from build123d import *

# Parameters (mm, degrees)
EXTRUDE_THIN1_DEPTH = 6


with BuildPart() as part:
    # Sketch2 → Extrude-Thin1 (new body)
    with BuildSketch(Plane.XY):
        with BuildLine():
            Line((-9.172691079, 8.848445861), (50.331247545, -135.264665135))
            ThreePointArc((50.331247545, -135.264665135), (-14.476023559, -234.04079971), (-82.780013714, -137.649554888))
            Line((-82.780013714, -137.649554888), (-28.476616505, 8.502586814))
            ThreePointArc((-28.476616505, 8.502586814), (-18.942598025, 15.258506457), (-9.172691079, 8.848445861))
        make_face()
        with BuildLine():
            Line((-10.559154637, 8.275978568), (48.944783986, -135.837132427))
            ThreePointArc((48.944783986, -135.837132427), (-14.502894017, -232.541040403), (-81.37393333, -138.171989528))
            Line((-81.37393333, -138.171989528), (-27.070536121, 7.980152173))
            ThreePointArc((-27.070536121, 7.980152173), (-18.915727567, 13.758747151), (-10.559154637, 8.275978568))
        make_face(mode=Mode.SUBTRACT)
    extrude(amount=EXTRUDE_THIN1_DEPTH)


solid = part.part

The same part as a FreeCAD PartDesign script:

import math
import FreeCAD as App
import Part
import Sketcher
from FreeCAD import Vector

doc = App.newDocument("Part")
body = doc.addObject("PartDesign::Body", "Body")

# Sketch on XY plane
sketch1 = body.newObject("Sketcher::SketchObject", "Sketch")
sketch1.AttachmentSupport = (doc.getObject("XY_Plane"), [""])
sketch1.MapMode = "FlatFace"
sketch1.addGeometry(Part.LineSegment(Vector(50, -135, 0), Vector(-9, 9, 0)), False)
sketch1.addGeometry(Part.ArcOfCircle(Part.Circle(Vector(-19, 5, 0), Vector(0, 0, 1), 10), math.radians(22), math.radians(160)), False)
sketch1.addGeometry(Part.LineSegment(Vector(-28, 9, 0), Vector(-83, -138, 0)), False)
sketch1.addGeometry(Part.ArcOfCircle(Part.Circle(Vector(-16, -163, 0), Vector(0, 0, 1), 72), math.radians(160), math.radians(382)), False)
sketch1.addGeometry(Part.LineSegment(Vector(-11, 8, 0), Vector(49, -136, 0)), False)
sketch1.addGeometry(Part.ArcOfCircle(Part.Circle(Vector(-16, -163, 0), Vector(0, 0, 1), 70), math.radians(160), math.radians(382)), False)
sketch1.addGeometry(Part.LineSegment(Vector(-81, -138, 0), Vector(-27, 8, 0)), False)
sketch1.addGeometry(Part.ArcOfCircle(Part.Circle(Vector(-19, 5, 0), Vector(0, 0, 1), 9), math.radians(22), math.radians(160)), False)
sketch1.addConstraint(Sketcher.Constraint("Tangent", 0, 2, 1, 1))
sketch1.addConstraint(Sketcher.Constraint("Tangent", 1, 2, 2, 1))
sketch1.addConstraint(Sketcher.Constraint("Tangent", 2, 2, 3, 1))
sketch1.addConstraint(Sketcher.Constraint("Tangent", 3, 2, 0, 1))
sketch1.addConstraint(Sketcher.Constraint("Tangent", 4, 2, 5, 2))
sketch1.addConstraint(Sketcher.Constraint("Tangent", 5, 1, 6, 1))
sketch1.addConstraint(Sketcher.Constraint("Tangent", 6, 2, 7, 2))
sketch1.addConstraint(Sketcher.Constraint("Tangent", 7, 1, 4, 1))
sketch1.addConstraint(Sketcher.Constraint("Coincident", 5, 3, 3, 3))
sketch1.addConstraint(Sketcher.Constraint("Coincident", 7, 3, 1, 3))
sketch1.addConstraint(Sketcher.Constraint("Parallel", 0, 4))
sketch1.addConstraint(Sketcher.Constraint("Radius", 5, 70.0))
sketch1.addConstraint(Sketcher.Constraint("Radius", 3, 71.5))
sketch1.addConstraint(Sketcher.Constraint("Radius", 1, 10.369))
sketch1.addConstraint(Sketcher.Constraint("DistanceX", 1, 3, 3, 2, 69.088099))
sketch1.addConstraint(Sketcher.Constraint("DistanceX", 1, 3, -1, 1, 18.756852))
sketch1.addConstraint(Sketcher.Constraint("DistanceY", -1, 1, 1, 3, 4.89117))
sketch1.addConstraint(Sketcher.Constraint("DistanceX", 3, 3, -1, 1, 15.756849))
pad1 = body.newObject("PartDesign::Pad", "Pad")
pad1.Profile = sketch1
pad1.Length = 6

doc.recompute()
